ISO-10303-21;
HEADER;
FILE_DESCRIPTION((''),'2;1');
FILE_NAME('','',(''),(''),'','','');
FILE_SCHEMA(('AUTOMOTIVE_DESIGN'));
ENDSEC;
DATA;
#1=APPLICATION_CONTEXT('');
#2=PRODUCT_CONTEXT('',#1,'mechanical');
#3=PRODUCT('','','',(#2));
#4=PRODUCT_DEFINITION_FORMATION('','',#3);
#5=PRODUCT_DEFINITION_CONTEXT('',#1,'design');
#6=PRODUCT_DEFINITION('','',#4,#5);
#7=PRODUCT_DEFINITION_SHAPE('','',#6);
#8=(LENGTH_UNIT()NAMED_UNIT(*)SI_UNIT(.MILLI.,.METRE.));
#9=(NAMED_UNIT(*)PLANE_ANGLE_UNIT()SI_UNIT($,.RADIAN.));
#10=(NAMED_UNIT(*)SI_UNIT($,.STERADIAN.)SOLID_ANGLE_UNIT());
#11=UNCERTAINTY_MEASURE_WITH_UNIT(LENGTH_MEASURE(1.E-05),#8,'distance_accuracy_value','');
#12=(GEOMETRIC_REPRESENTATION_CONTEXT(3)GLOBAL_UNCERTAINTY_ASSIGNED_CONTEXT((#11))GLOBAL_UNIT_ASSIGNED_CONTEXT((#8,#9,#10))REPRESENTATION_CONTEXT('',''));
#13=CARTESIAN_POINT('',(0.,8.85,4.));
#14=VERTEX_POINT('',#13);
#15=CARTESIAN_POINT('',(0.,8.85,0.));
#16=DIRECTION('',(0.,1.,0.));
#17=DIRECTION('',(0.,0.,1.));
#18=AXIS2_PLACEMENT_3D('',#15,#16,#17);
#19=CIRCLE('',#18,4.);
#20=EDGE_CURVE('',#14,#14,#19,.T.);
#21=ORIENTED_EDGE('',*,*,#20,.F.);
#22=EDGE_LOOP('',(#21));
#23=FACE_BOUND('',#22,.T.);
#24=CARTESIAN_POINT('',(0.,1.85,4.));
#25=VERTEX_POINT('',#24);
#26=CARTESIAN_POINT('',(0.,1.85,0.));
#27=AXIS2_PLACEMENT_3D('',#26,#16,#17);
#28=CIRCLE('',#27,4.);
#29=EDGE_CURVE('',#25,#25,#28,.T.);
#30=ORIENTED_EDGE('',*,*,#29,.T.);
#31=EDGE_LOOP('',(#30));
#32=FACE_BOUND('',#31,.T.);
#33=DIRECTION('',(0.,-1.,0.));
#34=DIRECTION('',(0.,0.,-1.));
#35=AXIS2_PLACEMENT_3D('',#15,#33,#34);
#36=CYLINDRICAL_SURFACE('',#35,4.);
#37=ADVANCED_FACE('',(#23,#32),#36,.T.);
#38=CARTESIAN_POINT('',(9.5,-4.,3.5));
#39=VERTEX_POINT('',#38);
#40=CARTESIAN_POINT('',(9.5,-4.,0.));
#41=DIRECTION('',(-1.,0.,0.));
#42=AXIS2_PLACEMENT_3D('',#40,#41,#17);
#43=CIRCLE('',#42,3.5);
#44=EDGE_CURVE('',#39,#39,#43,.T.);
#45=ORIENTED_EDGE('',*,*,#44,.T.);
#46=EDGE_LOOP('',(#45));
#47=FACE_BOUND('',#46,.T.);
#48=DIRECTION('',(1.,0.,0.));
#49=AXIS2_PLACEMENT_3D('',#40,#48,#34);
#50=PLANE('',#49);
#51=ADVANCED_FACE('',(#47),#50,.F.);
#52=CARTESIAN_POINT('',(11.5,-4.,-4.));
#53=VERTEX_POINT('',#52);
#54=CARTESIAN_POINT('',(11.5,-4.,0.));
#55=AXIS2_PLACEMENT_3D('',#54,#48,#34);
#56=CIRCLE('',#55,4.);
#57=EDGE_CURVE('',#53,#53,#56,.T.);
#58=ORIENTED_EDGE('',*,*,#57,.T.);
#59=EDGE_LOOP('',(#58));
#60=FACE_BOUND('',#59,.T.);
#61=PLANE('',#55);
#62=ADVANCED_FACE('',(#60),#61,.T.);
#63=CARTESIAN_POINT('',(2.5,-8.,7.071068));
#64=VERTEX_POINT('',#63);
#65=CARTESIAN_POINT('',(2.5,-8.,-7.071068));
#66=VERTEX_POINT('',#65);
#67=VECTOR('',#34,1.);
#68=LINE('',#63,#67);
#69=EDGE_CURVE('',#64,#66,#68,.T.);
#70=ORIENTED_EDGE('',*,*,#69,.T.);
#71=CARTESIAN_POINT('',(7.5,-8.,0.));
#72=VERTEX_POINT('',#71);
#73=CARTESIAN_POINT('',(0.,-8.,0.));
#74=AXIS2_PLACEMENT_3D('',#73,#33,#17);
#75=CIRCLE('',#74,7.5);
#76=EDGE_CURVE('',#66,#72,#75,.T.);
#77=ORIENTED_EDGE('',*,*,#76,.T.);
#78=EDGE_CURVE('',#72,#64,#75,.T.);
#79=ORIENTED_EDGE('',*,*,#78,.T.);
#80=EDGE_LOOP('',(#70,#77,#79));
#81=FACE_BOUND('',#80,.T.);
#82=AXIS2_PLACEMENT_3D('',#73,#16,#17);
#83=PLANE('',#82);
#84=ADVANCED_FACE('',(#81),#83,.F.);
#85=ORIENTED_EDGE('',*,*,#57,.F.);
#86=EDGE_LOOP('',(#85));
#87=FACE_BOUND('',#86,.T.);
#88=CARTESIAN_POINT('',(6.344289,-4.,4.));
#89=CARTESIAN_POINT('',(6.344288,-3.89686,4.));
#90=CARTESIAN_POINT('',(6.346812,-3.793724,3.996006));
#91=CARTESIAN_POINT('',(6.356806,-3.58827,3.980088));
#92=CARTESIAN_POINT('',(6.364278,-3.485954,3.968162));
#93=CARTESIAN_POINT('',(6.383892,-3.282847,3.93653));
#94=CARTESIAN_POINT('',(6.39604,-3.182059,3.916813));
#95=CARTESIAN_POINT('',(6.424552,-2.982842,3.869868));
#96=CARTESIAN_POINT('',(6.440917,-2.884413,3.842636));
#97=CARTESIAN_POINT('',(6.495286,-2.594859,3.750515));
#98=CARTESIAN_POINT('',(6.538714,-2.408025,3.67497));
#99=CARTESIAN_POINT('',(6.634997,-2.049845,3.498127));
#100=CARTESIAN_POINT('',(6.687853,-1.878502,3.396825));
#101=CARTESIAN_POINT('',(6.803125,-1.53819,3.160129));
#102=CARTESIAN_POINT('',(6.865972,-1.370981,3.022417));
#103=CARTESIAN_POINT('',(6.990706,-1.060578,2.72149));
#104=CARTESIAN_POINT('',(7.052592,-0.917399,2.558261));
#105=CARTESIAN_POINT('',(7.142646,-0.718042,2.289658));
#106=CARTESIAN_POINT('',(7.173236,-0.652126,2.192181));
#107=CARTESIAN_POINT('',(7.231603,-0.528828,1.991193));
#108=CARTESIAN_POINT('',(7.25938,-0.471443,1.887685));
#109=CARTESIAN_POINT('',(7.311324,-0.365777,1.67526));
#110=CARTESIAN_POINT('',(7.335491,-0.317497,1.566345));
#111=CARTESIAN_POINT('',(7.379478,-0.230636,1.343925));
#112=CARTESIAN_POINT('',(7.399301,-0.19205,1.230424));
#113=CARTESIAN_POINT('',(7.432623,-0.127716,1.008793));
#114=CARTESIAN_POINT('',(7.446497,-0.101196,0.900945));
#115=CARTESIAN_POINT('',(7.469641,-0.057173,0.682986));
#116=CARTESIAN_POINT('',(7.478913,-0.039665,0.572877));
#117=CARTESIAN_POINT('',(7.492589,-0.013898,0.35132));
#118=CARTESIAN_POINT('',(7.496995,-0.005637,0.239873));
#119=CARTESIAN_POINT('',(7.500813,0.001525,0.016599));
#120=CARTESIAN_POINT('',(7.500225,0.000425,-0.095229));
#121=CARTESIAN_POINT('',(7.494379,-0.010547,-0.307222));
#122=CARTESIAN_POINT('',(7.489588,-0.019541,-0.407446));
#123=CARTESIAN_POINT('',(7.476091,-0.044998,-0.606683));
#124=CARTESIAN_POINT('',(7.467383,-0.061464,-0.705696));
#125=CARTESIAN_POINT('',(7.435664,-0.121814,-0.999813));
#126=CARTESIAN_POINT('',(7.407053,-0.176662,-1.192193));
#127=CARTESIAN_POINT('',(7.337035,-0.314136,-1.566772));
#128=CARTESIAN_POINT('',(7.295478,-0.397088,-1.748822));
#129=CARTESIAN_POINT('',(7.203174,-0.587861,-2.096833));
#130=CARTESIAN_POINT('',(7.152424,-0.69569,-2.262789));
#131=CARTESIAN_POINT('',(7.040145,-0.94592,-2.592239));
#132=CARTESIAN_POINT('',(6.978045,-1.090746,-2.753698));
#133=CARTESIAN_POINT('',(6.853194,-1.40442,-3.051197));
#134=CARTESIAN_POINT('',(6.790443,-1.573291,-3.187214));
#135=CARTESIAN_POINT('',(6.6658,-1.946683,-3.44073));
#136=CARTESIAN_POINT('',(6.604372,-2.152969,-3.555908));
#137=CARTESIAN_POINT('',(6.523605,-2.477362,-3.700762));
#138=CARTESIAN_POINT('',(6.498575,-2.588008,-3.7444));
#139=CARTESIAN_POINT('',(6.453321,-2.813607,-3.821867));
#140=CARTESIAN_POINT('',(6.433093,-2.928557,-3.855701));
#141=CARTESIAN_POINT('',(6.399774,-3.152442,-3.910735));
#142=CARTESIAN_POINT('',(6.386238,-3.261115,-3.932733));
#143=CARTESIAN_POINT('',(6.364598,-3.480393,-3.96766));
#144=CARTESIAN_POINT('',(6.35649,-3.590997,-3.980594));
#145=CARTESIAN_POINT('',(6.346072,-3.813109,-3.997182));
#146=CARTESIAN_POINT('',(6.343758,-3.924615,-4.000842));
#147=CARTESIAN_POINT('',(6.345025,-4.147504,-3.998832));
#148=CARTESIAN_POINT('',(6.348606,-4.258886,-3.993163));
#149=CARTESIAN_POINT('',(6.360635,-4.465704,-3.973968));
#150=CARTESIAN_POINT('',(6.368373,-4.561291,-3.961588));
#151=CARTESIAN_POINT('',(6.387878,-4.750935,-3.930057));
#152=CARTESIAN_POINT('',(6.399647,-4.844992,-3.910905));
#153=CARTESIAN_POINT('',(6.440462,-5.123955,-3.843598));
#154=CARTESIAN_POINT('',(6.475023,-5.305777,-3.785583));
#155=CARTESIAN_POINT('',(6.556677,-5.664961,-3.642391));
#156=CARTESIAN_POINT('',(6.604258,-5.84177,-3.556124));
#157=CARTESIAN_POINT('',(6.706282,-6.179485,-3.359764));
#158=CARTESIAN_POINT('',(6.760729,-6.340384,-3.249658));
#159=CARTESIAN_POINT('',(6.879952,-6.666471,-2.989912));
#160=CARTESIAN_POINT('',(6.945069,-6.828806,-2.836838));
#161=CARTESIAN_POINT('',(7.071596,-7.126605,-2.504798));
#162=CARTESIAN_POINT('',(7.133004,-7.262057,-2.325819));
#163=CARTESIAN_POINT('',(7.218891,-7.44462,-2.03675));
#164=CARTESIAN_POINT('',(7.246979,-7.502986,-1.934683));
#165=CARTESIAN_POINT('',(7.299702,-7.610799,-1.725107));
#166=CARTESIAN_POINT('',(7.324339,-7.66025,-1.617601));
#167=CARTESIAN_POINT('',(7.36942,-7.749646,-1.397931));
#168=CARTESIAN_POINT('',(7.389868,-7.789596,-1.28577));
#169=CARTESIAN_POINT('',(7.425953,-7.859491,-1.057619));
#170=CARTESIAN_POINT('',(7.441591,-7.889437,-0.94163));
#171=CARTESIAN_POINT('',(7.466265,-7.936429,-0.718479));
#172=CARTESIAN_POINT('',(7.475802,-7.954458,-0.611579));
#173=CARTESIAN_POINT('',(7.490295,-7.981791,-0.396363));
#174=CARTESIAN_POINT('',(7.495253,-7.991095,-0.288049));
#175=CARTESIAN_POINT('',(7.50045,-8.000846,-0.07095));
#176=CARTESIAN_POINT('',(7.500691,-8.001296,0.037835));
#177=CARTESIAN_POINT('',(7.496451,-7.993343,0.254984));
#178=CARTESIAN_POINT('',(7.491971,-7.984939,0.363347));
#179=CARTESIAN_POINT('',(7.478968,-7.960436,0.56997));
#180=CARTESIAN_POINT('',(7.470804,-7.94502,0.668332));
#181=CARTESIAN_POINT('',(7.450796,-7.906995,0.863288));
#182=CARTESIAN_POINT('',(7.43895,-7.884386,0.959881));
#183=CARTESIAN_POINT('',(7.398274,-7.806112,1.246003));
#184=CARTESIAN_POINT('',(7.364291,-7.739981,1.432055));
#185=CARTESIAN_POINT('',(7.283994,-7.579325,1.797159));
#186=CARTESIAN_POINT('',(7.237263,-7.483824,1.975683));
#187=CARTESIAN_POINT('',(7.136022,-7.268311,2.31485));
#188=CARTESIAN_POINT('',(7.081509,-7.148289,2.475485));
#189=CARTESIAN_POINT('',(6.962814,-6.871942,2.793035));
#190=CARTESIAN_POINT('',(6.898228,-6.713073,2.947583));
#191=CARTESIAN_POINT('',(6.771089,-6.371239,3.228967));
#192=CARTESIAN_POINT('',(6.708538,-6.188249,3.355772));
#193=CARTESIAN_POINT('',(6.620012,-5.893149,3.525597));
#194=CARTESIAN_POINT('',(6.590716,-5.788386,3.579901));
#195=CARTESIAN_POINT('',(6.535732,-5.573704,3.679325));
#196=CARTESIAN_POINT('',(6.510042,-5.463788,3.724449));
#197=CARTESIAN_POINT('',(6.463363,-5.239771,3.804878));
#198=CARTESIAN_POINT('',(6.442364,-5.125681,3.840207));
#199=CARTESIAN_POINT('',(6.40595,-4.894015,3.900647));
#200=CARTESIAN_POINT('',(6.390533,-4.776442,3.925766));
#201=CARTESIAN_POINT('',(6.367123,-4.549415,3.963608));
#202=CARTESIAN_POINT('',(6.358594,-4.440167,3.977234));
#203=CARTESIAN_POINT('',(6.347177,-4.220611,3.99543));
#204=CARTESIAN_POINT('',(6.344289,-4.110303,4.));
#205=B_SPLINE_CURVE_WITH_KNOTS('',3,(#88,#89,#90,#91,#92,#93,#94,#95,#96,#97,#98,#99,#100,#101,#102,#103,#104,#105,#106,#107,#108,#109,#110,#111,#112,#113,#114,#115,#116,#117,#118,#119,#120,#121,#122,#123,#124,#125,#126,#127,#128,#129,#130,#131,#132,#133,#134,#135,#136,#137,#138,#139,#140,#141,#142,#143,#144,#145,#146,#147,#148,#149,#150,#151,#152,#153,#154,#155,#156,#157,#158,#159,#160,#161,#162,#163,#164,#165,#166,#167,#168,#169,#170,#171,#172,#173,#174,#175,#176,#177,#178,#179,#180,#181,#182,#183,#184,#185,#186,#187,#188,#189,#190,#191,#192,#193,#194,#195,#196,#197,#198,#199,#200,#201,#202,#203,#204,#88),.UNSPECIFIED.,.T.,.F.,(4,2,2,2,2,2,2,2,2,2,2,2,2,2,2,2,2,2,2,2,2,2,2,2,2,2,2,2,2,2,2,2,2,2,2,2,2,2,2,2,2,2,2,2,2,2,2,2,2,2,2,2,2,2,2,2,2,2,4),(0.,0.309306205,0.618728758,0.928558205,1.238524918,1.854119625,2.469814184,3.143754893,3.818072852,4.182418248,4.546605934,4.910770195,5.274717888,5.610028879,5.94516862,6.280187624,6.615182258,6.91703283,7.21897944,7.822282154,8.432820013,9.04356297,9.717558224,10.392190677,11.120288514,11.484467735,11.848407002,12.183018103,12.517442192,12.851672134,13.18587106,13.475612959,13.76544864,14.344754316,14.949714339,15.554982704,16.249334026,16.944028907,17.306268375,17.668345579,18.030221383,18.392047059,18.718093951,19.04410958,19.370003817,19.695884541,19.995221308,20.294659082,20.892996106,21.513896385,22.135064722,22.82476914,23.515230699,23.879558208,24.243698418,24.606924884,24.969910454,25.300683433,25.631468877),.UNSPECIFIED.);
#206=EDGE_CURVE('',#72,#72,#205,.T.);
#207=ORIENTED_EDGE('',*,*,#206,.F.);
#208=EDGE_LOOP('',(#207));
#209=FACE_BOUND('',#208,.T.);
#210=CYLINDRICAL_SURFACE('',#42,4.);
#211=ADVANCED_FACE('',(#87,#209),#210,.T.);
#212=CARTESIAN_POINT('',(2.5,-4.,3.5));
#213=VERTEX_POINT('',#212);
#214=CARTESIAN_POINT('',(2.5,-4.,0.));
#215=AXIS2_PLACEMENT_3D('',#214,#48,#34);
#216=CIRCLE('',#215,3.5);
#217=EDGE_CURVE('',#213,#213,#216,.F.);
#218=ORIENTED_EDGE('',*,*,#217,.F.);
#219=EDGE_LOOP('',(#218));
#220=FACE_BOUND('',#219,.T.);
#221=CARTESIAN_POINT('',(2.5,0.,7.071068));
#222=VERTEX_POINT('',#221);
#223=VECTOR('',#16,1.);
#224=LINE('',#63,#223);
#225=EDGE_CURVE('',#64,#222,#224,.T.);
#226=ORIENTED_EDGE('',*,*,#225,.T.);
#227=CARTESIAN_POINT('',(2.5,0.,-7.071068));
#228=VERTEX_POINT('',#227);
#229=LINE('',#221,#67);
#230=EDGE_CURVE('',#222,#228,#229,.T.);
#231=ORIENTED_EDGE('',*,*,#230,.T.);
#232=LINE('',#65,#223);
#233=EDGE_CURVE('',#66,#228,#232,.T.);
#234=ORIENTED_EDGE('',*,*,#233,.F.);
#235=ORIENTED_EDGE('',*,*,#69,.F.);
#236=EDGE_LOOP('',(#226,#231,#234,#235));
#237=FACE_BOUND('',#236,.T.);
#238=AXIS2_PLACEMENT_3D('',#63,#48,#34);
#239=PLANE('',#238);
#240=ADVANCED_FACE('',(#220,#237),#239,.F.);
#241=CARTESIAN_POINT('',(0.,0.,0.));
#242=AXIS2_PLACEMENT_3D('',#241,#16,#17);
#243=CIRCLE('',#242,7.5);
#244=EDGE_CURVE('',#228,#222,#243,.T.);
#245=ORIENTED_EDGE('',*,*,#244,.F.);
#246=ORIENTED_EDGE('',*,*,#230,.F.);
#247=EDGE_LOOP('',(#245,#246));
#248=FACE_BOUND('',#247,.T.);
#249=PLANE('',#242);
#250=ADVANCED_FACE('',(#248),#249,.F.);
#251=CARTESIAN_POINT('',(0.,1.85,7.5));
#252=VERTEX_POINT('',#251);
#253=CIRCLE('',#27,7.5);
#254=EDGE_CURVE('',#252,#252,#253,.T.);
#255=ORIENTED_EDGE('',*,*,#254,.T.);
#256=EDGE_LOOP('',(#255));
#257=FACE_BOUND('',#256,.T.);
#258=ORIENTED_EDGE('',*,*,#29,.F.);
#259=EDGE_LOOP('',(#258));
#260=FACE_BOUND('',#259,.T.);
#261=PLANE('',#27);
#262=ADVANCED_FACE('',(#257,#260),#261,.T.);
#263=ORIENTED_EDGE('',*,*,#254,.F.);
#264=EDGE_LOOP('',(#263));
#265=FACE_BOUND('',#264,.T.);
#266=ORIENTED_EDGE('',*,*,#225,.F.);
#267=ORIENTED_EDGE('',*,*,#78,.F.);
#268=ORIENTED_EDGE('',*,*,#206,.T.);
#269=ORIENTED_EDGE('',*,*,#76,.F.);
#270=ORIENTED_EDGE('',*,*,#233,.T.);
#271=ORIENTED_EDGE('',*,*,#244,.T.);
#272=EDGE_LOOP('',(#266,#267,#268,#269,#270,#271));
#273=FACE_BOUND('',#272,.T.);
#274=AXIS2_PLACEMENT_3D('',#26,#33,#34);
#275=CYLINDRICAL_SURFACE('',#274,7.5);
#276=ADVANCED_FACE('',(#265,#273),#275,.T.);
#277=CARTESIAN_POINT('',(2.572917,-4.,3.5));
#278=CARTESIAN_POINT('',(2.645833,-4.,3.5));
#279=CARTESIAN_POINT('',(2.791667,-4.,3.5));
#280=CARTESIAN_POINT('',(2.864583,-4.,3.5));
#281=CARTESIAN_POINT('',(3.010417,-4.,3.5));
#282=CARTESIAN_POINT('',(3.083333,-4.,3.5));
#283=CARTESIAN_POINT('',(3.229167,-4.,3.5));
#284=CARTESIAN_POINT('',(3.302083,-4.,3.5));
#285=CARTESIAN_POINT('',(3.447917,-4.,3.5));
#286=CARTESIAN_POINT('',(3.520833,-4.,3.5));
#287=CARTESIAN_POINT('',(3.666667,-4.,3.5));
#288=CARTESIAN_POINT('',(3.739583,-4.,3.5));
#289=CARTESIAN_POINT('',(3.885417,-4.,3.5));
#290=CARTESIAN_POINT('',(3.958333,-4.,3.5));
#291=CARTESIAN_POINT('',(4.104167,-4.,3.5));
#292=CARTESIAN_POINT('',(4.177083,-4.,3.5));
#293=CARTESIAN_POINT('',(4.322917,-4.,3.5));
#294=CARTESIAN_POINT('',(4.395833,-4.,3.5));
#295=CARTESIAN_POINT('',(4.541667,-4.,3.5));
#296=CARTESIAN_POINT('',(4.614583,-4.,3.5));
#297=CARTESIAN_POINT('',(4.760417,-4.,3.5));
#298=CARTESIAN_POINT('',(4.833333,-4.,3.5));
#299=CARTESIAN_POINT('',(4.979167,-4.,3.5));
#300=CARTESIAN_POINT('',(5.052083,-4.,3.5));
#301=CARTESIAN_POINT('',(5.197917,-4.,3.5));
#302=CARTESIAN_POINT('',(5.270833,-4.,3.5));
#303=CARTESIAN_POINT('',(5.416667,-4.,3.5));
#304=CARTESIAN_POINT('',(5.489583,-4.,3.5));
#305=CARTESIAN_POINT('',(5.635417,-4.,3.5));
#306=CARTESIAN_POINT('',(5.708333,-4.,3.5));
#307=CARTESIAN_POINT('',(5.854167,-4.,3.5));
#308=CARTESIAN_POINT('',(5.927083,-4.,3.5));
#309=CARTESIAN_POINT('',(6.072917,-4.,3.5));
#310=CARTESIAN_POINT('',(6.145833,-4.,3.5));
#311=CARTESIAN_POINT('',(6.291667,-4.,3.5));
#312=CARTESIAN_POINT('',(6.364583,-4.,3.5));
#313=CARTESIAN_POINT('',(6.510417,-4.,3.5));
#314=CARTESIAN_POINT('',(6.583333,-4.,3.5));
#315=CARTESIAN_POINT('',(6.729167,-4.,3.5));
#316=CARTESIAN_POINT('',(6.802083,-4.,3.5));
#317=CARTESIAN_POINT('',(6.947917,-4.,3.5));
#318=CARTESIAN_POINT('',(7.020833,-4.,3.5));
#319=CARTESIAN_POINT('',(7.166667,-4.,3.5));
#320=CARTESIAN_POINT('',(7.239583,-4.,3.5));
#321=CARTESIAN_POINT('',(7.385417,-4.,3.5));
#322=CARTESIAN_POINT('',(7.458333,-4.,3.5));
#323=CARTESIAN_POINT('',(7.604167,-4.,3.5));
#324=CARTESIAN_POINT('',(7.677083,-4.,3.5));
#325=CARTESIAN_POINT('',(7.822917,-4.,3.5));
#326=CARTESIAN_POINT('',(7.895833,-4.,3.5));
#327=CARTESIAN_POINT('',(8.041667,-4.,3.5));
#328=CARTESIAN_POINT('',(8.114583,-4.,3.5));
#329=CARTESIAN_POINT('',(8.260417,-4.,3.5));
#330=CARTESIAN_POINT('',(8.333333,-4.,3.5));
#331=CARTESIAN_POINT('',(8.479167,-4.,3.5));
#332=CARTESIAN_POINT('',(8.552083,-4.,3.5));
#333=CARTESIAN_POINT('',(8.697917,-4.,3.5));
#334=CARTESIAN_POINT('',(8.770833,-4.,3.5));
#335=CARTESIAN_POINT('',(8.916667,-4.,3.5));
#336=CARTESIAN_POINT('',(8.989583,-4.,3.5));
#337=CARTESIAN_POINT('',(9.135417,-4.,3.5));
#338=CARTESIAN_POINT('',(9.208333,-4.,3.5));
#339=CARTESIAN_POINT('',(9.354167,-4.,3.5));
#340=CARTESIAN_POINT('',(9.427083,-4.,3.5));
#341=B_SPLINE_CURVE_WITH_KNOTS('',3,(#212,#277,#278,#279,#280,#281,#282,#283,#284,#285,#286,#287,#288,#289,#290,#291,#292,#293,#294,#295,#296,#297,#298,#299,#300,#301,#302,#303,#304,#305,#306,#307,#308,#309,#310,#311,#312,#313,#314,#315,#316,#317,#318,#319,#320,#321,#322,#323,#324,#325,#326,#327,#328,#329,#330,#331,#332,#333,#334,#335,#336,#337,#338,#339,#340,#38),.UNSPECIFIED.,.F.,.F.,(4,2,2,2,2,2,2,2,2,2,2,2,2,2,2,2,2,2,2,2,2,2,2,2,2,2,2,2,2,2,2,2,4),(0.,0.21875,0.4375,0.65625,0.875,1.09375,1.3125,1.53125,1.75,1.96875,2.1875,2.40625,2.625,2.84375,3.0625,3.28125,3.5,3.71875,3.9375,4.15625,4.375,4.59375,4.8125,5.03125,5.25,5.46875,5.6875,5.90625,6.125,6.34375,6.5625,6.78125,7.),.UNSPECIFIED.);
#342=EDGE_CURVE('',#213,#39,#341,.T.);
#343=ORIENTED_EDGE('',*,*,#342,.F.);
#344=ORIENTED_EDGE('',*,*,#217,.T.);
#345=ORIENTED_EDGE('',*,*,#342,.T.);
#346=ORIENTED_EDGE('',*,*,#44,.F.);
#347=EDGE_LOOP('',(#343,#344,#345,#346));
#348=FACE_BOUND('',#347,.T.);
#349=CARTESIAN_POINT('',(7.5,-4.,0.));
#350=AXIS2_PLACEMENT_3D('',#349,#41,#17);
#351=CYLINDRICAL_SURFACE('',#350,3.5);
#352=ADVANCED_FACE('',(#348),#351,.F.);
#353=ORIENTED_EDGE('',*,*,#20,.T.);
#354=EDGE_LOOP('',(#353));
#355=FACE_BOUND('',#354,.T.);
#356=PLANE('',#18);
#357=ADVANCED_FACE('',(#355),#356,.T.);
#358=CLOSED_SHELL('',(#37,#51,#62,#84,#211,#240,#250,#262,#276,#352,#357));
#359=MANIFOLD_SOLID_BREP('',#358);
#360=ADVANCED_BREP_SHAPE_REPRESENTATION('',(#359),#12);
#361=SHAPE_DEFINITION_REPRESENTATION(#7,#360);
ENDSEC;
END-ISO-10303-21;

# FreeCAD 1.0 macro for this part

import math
import FreeCAD as App
import Part
import Sketcher
Q = App.Units.Quantity

doc = App.newDocument("Part")
body = doc.addObject("PartDesign::Body", "Body")

# Sketch on XZ plane
sketch1 = doc.addObject("Sketcher::SketchObject", "Sketch")
body.addObject(sketch1)
sketch1.AttachmentSupport = (doc.XZ_Plane, [""])
sketch1.MapMode = "FlatFace"
sketch1.addGeometry(Part.Circle(App.Vector(0, 0, 0), App.Vector(0, 0, 1), 8), False)
sketch1.addConstraint(Sketcher.Constraint("Coincident", 0, 3, -1, 1))
sketch1.addConstraint(Sketcher.Constraint("Diameter", 0, Q("15 mm")))
pad1 = doc.addObject("PartDesign::Pad", "Pad")
body.addObject(pad1)
pad1.Profile = sketch1
pad1.Length = 1.85
pad1.Reversed = True

# Sketch on XZ plane
sketch2 = doc.addObject("Sketcher::SketchObject", "Sketch001")
body.addObject(sketch2)
sketch2.AttachmentSupport = (doc.XZ_Plane, [""])
sketch2.MapMode = "FlatFace"
sketch2.AttachmentOffset = App.Placement(App.Vector(0, 0, 8), App.Rotation())
sketch2.addGeometry(Part.LineSegment(App.Vector(2, 7, 0), App.Vector(2, -7, 0)), False)
sketch2.addGeometry(Part.ArcOfCircle(Part.Circle(App.Vector(0, 0, 0), App.Vector(0, 0, 1), 8), math.radians(-71), math.radians(71)), False)
sketch2.addConstraint(Sketcher.Constraint("Coincident", 0, 1, 1, 2))
sketch2.addConstraint(Sketcher.Constraint("Coincident", 1, 1, 0, 2))
sketch2.addConstraint(Sketcher.Constraint("Vertical", 0))
sketch2.addConstraint(Sketcher.Constraint("Coincident", 1, 3, -1, 1))
sketch2.addConstraint(Sketcher.Constraint("Radius", 1, Q("7.5 mm")))
sketch2.addConstraint(Sketcher.Constraint("DistanceX", -1, 1, 0, 1, Q("2.5 mm")))
pad2 = doc.addObject("PartDesign::Pad", "Pad001")
body.addObject(pad2)
pad2.Profile = sketch2
pad2.Length = 8
pad2.Reversed = True

# Sketch on YZ plane
sketch3 = doc.addObject("Sketcher::SketchObject", "Sketch002")
body.addObject(sketch3)
sketch3.AttachmentSupport = (doc.YZ_Plane, [""])
sketch3.MapMode = "FlatFace"
sketch3.addGeometry(Part.Circle(App.Vector(-4, 0, 0), App.Vector(0, 0, 1), 3.5), False)
sketch3.addConstraint(Sketcher.Constraint("PointOnObject", 0, 3, -1))
sketch3.addConstraint(Sketcher.Constraint("Diameter", 0, Q("7 mm")))
sketch3.addConstraint(Sketcher.Constraint("DistanceX", 0, 3, -1, 1, Q("4 mm")))
pocket1 = doc.addObject("PartDesign::Pocket", "Pocket")
body.addObject(pocket1)
pocket1.Profile = sketch3
pocket1.Type = "ThroughAll"
pocket1.Reversed = True

# Sketch on YZ plane
sketch4 = doc.addObject("Sketcher::SketchObject", "Sketch003")
body.addObject(sketch4)
sketch4.AttachmentSupport = (doc.YZ_Plane, [""])
sketch4.MapMode = "FlatFace"
sketch4.AttachmentOffset = App.Placement(App.Vector(0, 0, 2.5), App.Rotation())
sketch4.addGeometry(Part.Circle(App.Vector(-4, 0, 0), App.Vector(0, 0, 1), 4), False)
sketch4.addGeometry(Part.Circle(App.Vector(-4, 0, 0), App.Vector(0, 0, 1), 3.5), False)
sketch4.addConstraint(Sketcher.Constraint("Coincident", 1, 3, 0, 3))
sketch4.addConstraint(Sketcher.Constraint("PointOnObject", 0, 3, -1))
sketch4.addConstraint(Sketcher.Constraint("Diameter", 0, Q("8 mm")))
sketch4.addConstraint(Sketcher.Constraint("Diameter", 1, Q("7 mm")))
sketch4.addConstraint(Sketcher.Constraint("DistanceX", 0, 3, -1, 1, Q("4 mm")))
pad3 = doc.addObject("PartDesign::Pad", "Pad002")
body.addObject(pad3)
pad3.Profile = sketch4
pad3.Length = 7

# Sketch on XZ plane
sketch5 = doc.addObject("Sketcher::SketchObject", "Sketch004")
body.addObject(sketch5)
sketch5.AttachmentSupport = (doc.XZ_Plane, [""])
sketch5.MapMode = "FlatFace"
sketch5.AttachmentOffset = App.Placement(App.Vector(0, 0, -1.85), App.Rotation())
sketch5.addGeometry(Part.Circle(App.Vector(0, 0, 0), App.Vector(0, 0, 1), 4), False)
sketch5.addConstraint(Sketcher.Constraint("Coincident", 0, 3, -1, 1))
sketch5.addConstraint(Sketcher.Constraint("Diameter", 0, Q("8 mm")))
pad4 = doc.addObject("PartDesign::Pad", "Pad003")
body.addObject(pad4)
pad4.Profile = sketch5
pad4.Length = 7
pad4.Reversed = True

# Sketch on YZ plane
sketch6 = doc.addObject("Sketcher::SketchObject", "Sketch005")
body.addObject(sketch6)
sketch6.AttachmentSupport = (doc.YZ_Plane, [""])
sketch6.MapMode = "FlatFace"
sketch6.AttachmentOffset = App.Placement(App.Vector(0, 0, 9.5), App.Rotation())
sketch6.addGeometry(Part.Circle(App.Vector(-4, 0, 0), App.Vector(0, 0, 1), 4), False)
sketch6.addConstraint(Sketcher.Constraint("PointOnObject", 0, 3, -1))
sketch6.addConstraint(Sketcher.Constraint("Diameter", 0, Q("8 mm")))
sketch6.addConstraint(Sketcher.Constraint("DistanceX", 0, 3, -1, 1, Q("4 mm")))
pad5 = doc.addObject("PartDesign::Pad", "Pad004")
body.addObject(pad5)
pad5.Profile = sketch6
pad5.Length = 2

doc.recompute()
